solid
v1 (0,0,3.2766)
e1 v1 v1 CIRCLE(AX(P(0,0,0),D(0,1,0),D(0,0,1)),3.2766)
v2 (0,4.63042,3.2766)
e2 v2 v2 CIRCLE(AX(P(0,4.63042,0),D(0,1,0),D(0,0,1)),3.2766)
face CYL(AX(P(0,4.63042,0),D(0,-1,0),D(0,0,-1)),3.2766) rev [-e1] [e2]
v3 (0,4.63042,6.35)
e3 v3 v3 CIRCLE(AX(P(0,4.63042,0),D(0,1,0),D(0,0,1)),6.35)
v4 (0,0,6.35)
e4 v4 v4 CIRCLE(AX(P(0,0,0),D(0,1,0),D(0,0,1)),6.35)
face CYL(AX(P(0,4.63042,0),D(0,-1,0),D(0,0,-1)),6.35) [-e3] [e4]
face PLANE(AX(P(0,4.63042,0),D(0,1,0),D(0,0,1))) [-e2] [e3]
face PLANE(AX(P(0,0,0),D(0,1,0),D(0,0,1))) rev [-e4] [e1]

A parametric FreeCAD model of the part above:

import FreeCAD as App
import Part
import Sketcher

V = App.Vector
Q = App.Units.Quantity

doc = App.newDocument("Part")
body = doc.addObject("PartDesign::Body", "Body")

sketch1 = doc.addObject("Sketcher::SketchObject", "Sketch")
body.addObject(sketch1)
sketch1.AttachmentSupport = (doc.XZ_Plane, [""])
sketch1.MapMode = "FlatFace"
sketch1.addGeometry([
    Part.Circle(V(0, 0, 0), V(0, 0, 1), 6.35),
    Part.Circle(V(0, 0, 0), V(0, 0, 1), 3.2766),
], False)
sketch1.addConstraint([
    Sketcher.Constraint("Coincident", 0, 3, -1, 1),
    Sketcher.Constraint("Coincident", 1, 3, -1, 1),
    Sketcher.Constraint("Diameter", 0, Q("0.5 in")),
    Sketcher.Constraint("Diameter", 1, Q("0.258 in")),
])
pad1 = doc.addObject("PartDesign::Pad", "Pad")
body.addObject(pad1)
pad1.Profile = sketch1
pad1.Length = Q("0.1823 in")
pad1.Reversed = True

doc.recompute()
